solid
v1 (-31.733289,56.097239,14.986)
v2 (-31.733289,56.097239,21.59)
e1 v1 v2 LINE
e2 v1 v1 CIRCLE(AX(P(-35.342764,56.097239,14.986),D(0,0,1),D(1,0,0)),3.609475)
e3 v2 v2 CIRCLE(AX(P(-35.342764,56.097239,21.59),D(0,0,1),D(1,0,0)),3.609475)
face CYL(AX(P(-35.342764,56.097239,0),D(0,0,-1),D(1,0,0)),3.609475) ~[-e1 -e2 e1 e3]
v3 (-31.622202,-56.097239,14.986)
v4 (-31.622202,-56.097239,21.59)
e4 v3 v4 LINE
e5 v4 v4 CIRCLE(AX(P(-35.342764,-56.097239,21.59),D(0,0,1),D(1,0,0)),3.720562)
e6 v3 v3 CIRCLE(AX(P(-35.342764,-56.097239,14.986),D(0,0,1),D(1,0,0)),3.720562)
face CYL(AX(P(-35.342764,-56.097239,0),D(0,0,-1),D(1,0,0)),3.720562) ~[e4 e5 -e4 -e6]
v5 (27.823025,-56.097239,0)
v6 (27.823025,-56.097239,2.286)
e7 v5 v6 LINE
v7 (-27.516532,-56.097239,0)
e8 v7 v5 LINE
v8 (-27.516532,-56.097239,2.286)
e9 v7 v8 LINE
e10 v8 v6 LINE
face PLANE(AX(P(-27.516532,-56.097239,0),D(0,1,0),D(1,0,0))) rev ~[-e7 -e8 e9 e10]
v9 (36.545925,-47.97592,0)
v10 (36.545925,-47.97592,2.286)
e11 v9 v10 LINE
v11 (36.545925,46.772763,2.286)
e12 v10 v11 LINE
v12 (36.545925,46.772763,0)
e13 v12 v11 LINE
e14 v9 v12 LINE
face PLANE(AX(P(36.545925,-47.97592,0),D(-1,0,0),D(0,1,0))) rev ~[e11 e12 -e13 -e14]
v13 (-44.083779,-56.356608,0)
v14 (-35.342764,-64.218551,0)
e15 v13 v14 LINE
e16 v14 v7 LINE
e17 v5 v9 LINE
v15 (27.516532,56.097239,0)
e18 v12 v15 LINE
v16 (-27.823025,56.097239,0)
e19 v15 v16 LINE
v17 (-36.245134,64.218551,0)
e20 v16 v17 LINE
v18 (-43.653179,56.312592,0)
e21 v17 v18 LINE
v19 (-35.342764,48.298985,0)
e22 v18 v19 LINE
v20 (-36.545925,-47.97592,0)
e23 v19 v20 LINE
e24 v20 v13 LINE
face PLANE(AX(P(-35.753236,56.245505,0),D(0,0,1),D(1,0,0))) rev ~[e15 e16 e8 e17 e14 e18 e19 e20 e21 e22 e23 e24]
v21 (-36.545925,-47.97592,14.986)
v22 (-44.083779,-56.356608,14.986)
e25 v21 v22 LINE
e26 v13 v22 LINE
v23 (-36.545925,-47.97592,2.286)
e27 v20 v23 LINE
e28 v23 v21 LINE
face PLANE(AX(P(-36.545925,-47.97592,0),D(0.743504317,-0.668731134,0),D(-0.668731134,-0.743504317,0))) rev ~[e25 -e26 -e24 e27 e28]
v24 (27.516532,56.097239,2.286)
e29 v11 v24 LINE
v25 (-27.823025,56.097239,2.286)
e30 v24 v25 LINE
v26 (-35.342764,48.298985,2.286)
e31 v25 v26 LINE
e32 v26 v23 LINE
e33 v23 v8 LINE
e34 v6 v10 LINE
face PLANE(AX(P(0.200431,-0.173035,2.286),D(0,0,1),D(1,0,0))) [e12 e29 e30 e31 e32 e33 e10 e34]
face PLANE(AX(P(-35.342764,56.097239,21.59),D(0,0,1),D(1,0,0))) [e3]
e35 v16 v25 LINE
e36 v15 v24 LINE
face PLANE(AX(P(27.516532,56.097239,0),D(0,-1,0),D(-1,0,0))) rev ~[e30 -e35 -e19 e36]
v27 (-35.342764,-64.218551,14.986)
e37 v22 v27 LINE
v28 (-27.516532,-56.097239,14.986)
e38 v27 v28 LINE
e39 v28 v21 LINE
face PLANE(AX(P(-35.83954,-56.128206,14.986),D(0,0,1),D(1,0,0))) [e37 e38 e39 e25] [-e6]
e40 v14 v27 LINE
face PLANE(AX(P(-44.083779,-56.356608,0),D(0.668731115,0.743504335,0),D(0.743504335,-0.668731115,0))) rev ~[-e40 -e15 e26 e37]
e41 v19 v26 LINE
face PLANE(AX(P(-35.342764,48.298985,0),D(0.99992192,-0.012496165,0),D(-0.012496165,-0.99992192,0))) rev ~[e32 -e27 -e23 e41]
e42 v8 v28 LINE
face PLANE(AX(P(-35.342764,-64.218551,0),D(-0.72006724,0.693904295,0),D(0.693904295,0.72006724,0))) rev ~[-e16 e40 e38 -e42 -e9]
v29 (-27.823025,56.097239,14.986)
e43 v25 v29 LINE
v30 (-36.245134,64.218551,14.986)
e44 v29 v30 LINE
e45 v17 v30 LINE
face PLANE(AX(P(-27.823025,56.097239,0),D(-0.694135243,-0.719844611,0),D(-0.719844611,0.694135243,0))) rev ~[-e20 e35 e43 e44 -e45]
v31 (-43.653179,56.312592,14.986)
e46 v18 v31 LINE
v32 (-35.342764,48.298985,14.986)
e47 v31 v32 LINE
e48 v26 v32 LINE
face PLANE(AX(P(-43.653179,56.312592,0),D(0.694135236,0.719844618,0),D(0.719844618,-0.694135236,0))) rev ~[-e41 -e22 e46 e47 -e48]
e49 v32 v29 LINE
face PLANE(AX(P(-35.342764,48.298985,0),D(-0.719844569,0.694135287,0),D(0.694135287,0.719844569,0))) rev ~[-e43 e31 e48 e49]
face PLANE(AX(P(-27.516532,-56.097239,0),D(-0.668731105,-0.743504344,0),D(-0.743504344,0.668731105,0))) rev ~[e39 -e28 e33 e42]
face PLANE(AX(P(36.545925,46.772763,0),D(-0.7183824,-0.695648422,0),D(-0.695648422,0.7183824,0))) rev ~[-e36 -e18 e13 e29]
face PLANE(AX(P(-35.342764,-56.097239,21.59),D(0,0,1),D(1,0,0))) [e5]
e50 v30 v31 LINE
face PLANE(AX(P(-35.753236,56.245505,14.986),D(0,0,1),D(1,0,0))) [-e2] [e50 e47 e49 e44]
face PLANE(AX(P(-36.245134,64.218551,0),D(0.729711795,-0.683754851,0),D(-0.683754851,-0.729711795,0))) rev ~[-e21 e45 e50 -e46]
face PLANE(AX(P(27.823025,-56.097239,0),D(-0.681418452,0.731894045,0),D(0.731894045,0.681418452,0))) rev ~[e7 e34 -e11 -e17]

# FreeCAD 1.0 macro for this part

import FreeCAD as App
import Part
import Sketcher
from FreeCAD import Vector
Q = App.Units.Quantity

doc = App.newDocument("Part")
body = doc.addObject("PartDesign::Body", "Body")

sketch1 = body.newObject("Sketcher::SketchObject", "Sketch")
sketch1.AttachmentSupport = (doc.getObject("XY_Plane"), [""])
sketch1.MapMode = "FlatFace"
sketch1.addGeometry([
    Part.LineSegment(Vector(37, 47, 0), Vector(28, 56, 0)),
    Part.LineSegment(Vector(28, 56, 0), Vector(-28, 56, 0)),
    Part.LineSegment(Vector(-28, 56, 0), Vector(-35, 48, 0)),
    Part.LineSegment(Vector(-35, 48, 0), Vector(-37, -48, 0)),
    Part.LineSegment(Vector(-37, -48, 0), Vector(-28, -56, 0)),
    Part.LineSegment(Vector(-28, -56, 0), Vector(28, -56, 0)),
    Part.LineSegment(Vector(28, -56, 0), Vector(37, -48, 0)),
    Part.LineSegment(Vector(37, -48, 0), Vector(37, 47, 0)),
], False)
sketch1.addConstraint([
    Sketcher.Constraint("Coincident", 0, 2, 1, 1),
    Sketcher.Constraint("Coincident", 1, 2, 2, 1),
    Sketcher.Constraint("Coincident", 2, 2, 3, 1),
    Sketcher.Constraint("Coincident", 3, 2, 4, 1),
    Sketcher.Constraint("Coincident", 4, 2, 5, 1),
    Sketcher.Constraint("Coincident", 5, 2, 6, 1),
    Sketcher.Constraint("Coincident", 6, 2, 7, 1),
    Sketcher.Constraint("Coincident", 7, 2, 0, 1),
    Sketcher.Constraint("Horizontal", 1),
    Sketcher.Constraint("Horizontal", 5),
    Sketcher.Constraint("Vertical", 7),
    Sketcher.Constraint("Symmetric", 0, 2, 4, 2, -1, 1),
    Sketcher.Constraint("Symmetric", 3, 2, 6, 2, -2),
    Sketcher.Constraint("Equal", 1, 5),
    Sketcher.Constraint("DistanceY", 5, 2, 7, 2, Q("4.0500001 in")),
    Sketcher.Constraint("DistanceX", 3, 2, 1, 2, Q("8.7229 mm")),
    Sketcher.Constraint("Distance", 4, Q("12.144372 mm")),
    Sketcher.Constraint("DistanceX", 1, 2, 1, 1, Q("55.339557 mm")),
    Sketcher.Constraint("DistanceY", 7, 1, 7, 2, Q("94.748683 mm")),
    Sketcher.Constraint("DistanceY", -1, 1, 0, 2, Q("56.097239 mm")),
    Sketcher.Constraint("DistanceX", 2, 2, 1, 2, Q("7.519739 mm")),
    Sketcher.Constraint("Distance", 2, Q("10.833247 mm")),
])
pad1 = body.newObject("PartDesign::Pad", "Pad")
pad1.Profile = sketch1
pad1.Length = Q("0.09 in")

sketch2 = body.newObject("Sketcher::SketchObject", "Sketch001")
sketch2.AttachmentSupport = (doc.getObject("XY_Plane"), [""])
sketch2.MapMode = "FlatFace"
sketch2.addGeometry([
    Part.LineSegment(Vector(-35.3, 48.3, 0), Vector(-27.8, 56.1, 0)),
    Part.LineSegment(Vector(-27.8, 56.1, 0), Vector(-36.2, 64.2, 0)),
    Part.LineSegment(Vector(-36.2, 64.2, 0), Vector(-43.7, 56.3, 0)),
    Part.LineSegment(Vector(-43.7, 56.3, 0), Vector(-35.3, 48.3, 0)),
    Part.Circle(Vector(-35.3, 56.1, 0), Vector(0, 0, 1), 3.6),
    Part.LineSegment(Vector(-27.5, -56.1, 0), Vector(-36.5, -48, 0)),
    Part.LineSegment(Vector(-36.5, -48, 0), Vector(-44.1, -56.4, 0)),
    Part.LineSegment(Vector(-44.1, -56.4, 0), Vector(-35.3, -64.2, 0)),
    Part.LineSegment(Vector(-35.3, -64.2, 0), Vector(-27.5, -56.1, 0)),
    Part.Circle(Vector(-35.3, -56.1, 0), Vector(0, 0, 1), 3.7),
], False)
sketch2.addConstraint([
    Sketcher.Constraint("Coincident", 0, 2, 1, 1),
    Sketcher.Constraint("Coincident", 1, 2, 2, 1),
    Sketcher.Constraint("Coincident", 2, 2, 3, 1),
    Sketcher.Constraint("Coincident", 3, 2, 0, 1),
    Sketcher.Constraint("Coincident", 5, 2, 6, 1),
    Sketcher.Constraint("Coincident", 6, 2, 7, 1),
    Sketcher.Constraint("Coincident", 7, 2, 8, 1),
    Sketcher.Constraint("Coincident", 8, 2, 5, 1),
    Sketcher.Constraint("Symmetric", 4, 3, 9, 3, -1),
    Sketcher.Constraint("Perpendicular", 0, 1),
    Sketcher.Constraint("Parallel", 1, 3),
    Sketcher.Constraint("Perpendicular", 5, 6),
    Sketcher.Constraint("Perpendicular", 6, 7),
    Sketcher.Constraint("Horizontal", 4, 3, 0, 2),
    Sketcher.Constraint("Horizontal", 9, 3, 8, 2),
    Sketcher.Constraint("Vertical", 9, 3, 3, 2),
    Sketcher.Constraint("Vertical", 3, 2, 7, 2),
    Sketcher.Constraint("Diameter", 4, Q("7.21895 mm")),
    Sketcher.Constraint("Diameter", 9, Q("7.441124 mm")),
    Sketcher.Constraint("Distance", 1, Q("11.699899 mm")),
    Sketcher.Constraint("DistanceX", 5, 2, 0, 2, Q("8.7229 mm")),
    Sketcher.Constraint("DistanceX", 6, 2, 2, 2, Q("0.4306 mm")),
    Sketcher.Constraint("DistanceY", 6, 2, 2, 2, Q("112.6692 mm")),
    Sketcher.Constraint("Distance", 2, Q("10.834358 mm")),
    Sketcher.Constraint("Distance", 5, Q("12.144372 mm")),
    Sketcher.Constraint("Distance", 7, Q("11.756508 mm")),
    Sketcher.Constraint("DistanceY", -1, 1, 4, 3, Q("56.097239 mm")),
    Sketcher.Constraint("DistanceY", -1, 1, 1, 2, Q("64.218551 mm")),
    Sketcher.Constraint("DistanceX", 2, 2, -1, 1, Q("43.653179 mm")),
])
pad2 = body.newObject("PartDesign::Pad", "Pad001")
pad2.Profile = sketch2
pad2.Length = Q("0.59 in")

sketch3 = body.newObject("Sketcher::SketchObject", "Sketch002")
sketch3.AttachmentSupport = (doc.getObject("XY_Plane"), [""])
sketch3.MapMode = "FlatFace"
sketch3.addGeometry([
    Part.Circle(Vector(-35.3, 56.1, 0), Vector(0, 0, 1), 3.6),
    Part.Circle(Vector(-35.3, -56.1, 0), Vector(0, 0, 1), 3.7),
], False)
sketch3.addConstraint([
    Sketcher.Constraint("Symmetric", 0, 3, 1, 3, -1),
    Sketcher.Constraint("Diameter", 0, Q("7.21895 mm")),
    Sketcher.Constraint("Diameter", 1, Q("7.441124 mm")),
    Sketcher.Constraint("DistanceY", -1, 1, 0, 3, Q("56.097239 mm")),
    Sketcher.Constraint("DistanceX", 0, 3, -1, 1, Q("35.342764 mm")),
])
pad3 = body.newObject("PartDesign::Pad", "Pad002")
pad3.Profile = sketch3
pad3.Length = Q("0.85 in")

doc.recompute()
